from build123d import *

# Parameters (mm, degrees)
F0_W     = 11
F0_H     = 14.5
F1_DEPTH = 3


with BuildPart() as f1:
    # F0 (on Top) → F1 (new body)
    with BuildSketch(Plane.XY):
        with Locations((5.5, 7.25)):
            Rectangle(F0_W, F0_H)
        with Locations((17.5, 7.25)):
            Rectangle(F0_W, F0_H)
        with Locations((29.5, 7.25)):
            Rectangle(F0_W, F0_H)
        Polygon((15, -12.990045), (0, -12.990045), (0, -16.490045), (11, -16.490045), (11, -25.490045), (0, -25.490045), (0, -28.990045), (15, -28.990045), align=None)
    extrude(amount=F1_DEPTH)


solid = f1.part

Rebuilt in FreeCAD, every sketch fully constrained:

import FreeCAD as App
import Part
import Sketcher
from FreeCAD import Vector
Q = App.Units.Quantity

doc = App.newDocument("Part")
body = doc.addObject("PartDesign::Body", "Body")
body.AllowCompound = True

# Sketch on XY plane
sketch1 = doc.addObject("Sketcher::SketchObject", "Sketch")
body.addObject(sketch1)
sketch1.AttachmentSupport = (doc.XY_Plane, [""])
sketch1.MapMode = "FlatFace"
sketch1.addGeometry([
    Part.LineSegment(Vector(0, 14.5, 0), Vector(0, 0, 0)),  # 0
    Part.LineSegment(Vector(0, 0, 0), Vector(11, 0, 0)),  # 1
    Part.LineSegment(Vector(11, 0, 0), Vector(11, 14.5, 0)),  # 2
    Part.LineSegment(Vector(11, 14.5, 0), Vector(0, 14.5, 0)),  # 3
    Part.LineSegment(Vector(12, 14.5, 0), Vector(12, 0, 0)),  # 4
    Part.LineSegment(Vector(12, 0, 0), Vector(23, 0, 0)),  # 5
    Part.LineSegment(Vector(23, 0, 0), Vector(23, 14.5, 0)),  # 6
    Part.LineSegment(Vector(23, 14.5, 0), Vector(12, 14.5, 0)),  # 7
    Part.LineSegment(Vector(24, 14.5, 0), Vector(24, 0, 0)),  # 8
    Part.LineSegment(Vector(24, 0, 0), Vector(35, 0, 0)),  # 9
    Part.LineSegment(Vector(35, 0, 0), Vector(35, 14.5, 0)),  # 10
    Part.LineSegment(Vector(35, 14.5, 0), Vector(24, 14.5, 0)),  # 11
    Part.LineSegment(Vector(15, -13, 0), Vector(0, -13, 0)),  # 12
    Part.LineSegment(Vector(0, -13, 0), Vector(0, -16.5, 0)),  # 13
    Part.LineSegment(Vector(0, -16.5, 0), Vector(11, -16.5, 0)),  # 14
    Part.LineSegment(Vector(11, -16.5, 0), Vector(11, -25.5, 0)),  # 15
    Part.LineSegment(Vector(11, -25.5, 0), Vector(0, -25.5, 0)),  # 16
    Part.LineSegment(Vector(0, -25.5, 0), Vector(0, -29, 0)),  # 17
    Part.LineSegment(Vector(0, -29, 0), Vector(15, -29, 0)),  # 18
    Part.LineSegment(Vector(15, -29, 0), Vector(15, -13, 0)),  # 19
], False)
sketch1.addConstraint([
    Sketcher.Constraint("Coincident", 0, 2, 1, 1),
    Sketcher.Constraint("Coincident", 1, 2, 2, 1),
    Sketcher.Constraint("Coincident", 2, 2, 3, 1),
    Sketcher.Constraint("Coincident", 3, 2, 0, 1),
    Sketcher.Constraint("Coincident", 4, 2, 5, 1),
    Sketcher.Constraint("Coincident", 5, 2, 6, 1),
    Sketcher.Constraint("Coincident", 6, 2, 7, 1),
    Sketcher.Constraint("Coincident", 7, 2, 4, 1),
    Sketcher.Constraint("Coincident", 8, 2, 9, 1),
    Sketcher.Constraint("Coincident", 9, 2, 10, 1),
    Sketcher.Constraint("Coincident", 10, 2, 11, 1),
    Sketcher.Constraint("Coincident", 11, 2, 8, 1),
    Sketcher.Constraint("Coincident", 12, 2, 13, 1),
    Sketcher.Constraint("Coincident", 13, 2, 14, 1),
    Sketcher.Constraint("Coincident", 14, 2, 15, 1),
    Sketcher.Constraint("Coincident", 15, 2, 16, 1),
    Sketcher.Constraint("Coincident", 16, 2, 17, 1),
    Sketcher.Constraint("Coincident", 17, 2, 18, 1),
    Sketcher.Constraint("Coincident", 18, 2, 19, 1),
    Sketcher.Constraint("Coincident", 19, 2, 12, 1),
    Sketcher.Constraint("Vertical", 0),
    Sketcher.Constraint("Horizontal", 1),
    Sketcher.Constraint("Vertical", 2),
    Sketcher.Constraint("Horizontal", 3),
    Sketcher.Constraint("Vertical", 4),
    Sketcher.Constraint("Horizontal", 5),
    Sketcher.Constraint("Vertical", 6),
    Sketcher.Constraint("Horizontal", 7),
    Sketcher.Constraint("Vertical", 8),
    Sketcher.Constraint("Horizontal", 9),
    Sketcher.Constraint("Vertical", 10),
    Sketcher.Constraint("Horizontal", 11),
    Sketcher.Constraint("Horizontal", 12),
    Sketcher.Constraint("Vertical", 13),
    Sketcher.Constraint("Horizontal", 14),
    Sketcher.Constraint("Vertical", 15),
    Sketcher.Constraint("Horizontal", 16),
    Sketcher.Constraint("Vertical", 17),
    Sketcher.Constraint("Horizontal", 18),
    Sketcher.Constraint("Vertical", 19),
    Sketcher.Constraint("Coincident", 0, 2, -1, 1),
    Sketcher.Constraint("PointOnObject", 4, 2, -1),
    Sketcher.Constraint("PointOnObject", 8, 2, -1),
    Sketcher.Constraint("PointOnObject", 12, 2, -2),
    Sketcher.Constraint("PointOnObject", 16, 2, -2),
    Sketcher.Constraint("Horizontal", 3, 2, 6, 2),
    Sketcher.Constraint("Horizontal", 7, 2, 10, 2),
    Sketcher.Constraint("Vertical", 2, 2, 14, 2),
    Sketcher.Constraint("Equal", 3, 5),
    Sketcher.Constraint("Equal", 7, 9),
    Sketcher.Constraint("Equal", 13, 17),
    Sketcher.Constraint("DistanceX", 1, 1, 1, 2, Q("11 mm")),
    Sketcher.Constraint("DistanceX", 12, 2, 12, 1, Q("15 mm")),
    Sketcher.Constraint("DistanceY", 15, 2, 15, 1, Q("9 mm")),
    Sketcher.Constraint("DistanceY", 19, 1, 19, 2, Q("16 mm")),
    Sketcher.Constraint("DistanceY", 0, 2, 0, 1, Q("14.5 mm")),
    Sketcher.Constraint("DistanceX", -1, 1, 4, 2, Q("12 mm")),
    Sketcher.Constraint("DistanceX", -1, 1, 8, 2, Q("24 mm")),
    Sketcher.Constraint("DistanceY", 12, 2, -1, 1, Q("12.990045 mm")),
])
pad1 = doc.addObject("PartDesign::Pad", "Pad")
body.addObject(pad1)
pad1.Profile = sketch1
pad1.Length = 3

doc.recompute()
